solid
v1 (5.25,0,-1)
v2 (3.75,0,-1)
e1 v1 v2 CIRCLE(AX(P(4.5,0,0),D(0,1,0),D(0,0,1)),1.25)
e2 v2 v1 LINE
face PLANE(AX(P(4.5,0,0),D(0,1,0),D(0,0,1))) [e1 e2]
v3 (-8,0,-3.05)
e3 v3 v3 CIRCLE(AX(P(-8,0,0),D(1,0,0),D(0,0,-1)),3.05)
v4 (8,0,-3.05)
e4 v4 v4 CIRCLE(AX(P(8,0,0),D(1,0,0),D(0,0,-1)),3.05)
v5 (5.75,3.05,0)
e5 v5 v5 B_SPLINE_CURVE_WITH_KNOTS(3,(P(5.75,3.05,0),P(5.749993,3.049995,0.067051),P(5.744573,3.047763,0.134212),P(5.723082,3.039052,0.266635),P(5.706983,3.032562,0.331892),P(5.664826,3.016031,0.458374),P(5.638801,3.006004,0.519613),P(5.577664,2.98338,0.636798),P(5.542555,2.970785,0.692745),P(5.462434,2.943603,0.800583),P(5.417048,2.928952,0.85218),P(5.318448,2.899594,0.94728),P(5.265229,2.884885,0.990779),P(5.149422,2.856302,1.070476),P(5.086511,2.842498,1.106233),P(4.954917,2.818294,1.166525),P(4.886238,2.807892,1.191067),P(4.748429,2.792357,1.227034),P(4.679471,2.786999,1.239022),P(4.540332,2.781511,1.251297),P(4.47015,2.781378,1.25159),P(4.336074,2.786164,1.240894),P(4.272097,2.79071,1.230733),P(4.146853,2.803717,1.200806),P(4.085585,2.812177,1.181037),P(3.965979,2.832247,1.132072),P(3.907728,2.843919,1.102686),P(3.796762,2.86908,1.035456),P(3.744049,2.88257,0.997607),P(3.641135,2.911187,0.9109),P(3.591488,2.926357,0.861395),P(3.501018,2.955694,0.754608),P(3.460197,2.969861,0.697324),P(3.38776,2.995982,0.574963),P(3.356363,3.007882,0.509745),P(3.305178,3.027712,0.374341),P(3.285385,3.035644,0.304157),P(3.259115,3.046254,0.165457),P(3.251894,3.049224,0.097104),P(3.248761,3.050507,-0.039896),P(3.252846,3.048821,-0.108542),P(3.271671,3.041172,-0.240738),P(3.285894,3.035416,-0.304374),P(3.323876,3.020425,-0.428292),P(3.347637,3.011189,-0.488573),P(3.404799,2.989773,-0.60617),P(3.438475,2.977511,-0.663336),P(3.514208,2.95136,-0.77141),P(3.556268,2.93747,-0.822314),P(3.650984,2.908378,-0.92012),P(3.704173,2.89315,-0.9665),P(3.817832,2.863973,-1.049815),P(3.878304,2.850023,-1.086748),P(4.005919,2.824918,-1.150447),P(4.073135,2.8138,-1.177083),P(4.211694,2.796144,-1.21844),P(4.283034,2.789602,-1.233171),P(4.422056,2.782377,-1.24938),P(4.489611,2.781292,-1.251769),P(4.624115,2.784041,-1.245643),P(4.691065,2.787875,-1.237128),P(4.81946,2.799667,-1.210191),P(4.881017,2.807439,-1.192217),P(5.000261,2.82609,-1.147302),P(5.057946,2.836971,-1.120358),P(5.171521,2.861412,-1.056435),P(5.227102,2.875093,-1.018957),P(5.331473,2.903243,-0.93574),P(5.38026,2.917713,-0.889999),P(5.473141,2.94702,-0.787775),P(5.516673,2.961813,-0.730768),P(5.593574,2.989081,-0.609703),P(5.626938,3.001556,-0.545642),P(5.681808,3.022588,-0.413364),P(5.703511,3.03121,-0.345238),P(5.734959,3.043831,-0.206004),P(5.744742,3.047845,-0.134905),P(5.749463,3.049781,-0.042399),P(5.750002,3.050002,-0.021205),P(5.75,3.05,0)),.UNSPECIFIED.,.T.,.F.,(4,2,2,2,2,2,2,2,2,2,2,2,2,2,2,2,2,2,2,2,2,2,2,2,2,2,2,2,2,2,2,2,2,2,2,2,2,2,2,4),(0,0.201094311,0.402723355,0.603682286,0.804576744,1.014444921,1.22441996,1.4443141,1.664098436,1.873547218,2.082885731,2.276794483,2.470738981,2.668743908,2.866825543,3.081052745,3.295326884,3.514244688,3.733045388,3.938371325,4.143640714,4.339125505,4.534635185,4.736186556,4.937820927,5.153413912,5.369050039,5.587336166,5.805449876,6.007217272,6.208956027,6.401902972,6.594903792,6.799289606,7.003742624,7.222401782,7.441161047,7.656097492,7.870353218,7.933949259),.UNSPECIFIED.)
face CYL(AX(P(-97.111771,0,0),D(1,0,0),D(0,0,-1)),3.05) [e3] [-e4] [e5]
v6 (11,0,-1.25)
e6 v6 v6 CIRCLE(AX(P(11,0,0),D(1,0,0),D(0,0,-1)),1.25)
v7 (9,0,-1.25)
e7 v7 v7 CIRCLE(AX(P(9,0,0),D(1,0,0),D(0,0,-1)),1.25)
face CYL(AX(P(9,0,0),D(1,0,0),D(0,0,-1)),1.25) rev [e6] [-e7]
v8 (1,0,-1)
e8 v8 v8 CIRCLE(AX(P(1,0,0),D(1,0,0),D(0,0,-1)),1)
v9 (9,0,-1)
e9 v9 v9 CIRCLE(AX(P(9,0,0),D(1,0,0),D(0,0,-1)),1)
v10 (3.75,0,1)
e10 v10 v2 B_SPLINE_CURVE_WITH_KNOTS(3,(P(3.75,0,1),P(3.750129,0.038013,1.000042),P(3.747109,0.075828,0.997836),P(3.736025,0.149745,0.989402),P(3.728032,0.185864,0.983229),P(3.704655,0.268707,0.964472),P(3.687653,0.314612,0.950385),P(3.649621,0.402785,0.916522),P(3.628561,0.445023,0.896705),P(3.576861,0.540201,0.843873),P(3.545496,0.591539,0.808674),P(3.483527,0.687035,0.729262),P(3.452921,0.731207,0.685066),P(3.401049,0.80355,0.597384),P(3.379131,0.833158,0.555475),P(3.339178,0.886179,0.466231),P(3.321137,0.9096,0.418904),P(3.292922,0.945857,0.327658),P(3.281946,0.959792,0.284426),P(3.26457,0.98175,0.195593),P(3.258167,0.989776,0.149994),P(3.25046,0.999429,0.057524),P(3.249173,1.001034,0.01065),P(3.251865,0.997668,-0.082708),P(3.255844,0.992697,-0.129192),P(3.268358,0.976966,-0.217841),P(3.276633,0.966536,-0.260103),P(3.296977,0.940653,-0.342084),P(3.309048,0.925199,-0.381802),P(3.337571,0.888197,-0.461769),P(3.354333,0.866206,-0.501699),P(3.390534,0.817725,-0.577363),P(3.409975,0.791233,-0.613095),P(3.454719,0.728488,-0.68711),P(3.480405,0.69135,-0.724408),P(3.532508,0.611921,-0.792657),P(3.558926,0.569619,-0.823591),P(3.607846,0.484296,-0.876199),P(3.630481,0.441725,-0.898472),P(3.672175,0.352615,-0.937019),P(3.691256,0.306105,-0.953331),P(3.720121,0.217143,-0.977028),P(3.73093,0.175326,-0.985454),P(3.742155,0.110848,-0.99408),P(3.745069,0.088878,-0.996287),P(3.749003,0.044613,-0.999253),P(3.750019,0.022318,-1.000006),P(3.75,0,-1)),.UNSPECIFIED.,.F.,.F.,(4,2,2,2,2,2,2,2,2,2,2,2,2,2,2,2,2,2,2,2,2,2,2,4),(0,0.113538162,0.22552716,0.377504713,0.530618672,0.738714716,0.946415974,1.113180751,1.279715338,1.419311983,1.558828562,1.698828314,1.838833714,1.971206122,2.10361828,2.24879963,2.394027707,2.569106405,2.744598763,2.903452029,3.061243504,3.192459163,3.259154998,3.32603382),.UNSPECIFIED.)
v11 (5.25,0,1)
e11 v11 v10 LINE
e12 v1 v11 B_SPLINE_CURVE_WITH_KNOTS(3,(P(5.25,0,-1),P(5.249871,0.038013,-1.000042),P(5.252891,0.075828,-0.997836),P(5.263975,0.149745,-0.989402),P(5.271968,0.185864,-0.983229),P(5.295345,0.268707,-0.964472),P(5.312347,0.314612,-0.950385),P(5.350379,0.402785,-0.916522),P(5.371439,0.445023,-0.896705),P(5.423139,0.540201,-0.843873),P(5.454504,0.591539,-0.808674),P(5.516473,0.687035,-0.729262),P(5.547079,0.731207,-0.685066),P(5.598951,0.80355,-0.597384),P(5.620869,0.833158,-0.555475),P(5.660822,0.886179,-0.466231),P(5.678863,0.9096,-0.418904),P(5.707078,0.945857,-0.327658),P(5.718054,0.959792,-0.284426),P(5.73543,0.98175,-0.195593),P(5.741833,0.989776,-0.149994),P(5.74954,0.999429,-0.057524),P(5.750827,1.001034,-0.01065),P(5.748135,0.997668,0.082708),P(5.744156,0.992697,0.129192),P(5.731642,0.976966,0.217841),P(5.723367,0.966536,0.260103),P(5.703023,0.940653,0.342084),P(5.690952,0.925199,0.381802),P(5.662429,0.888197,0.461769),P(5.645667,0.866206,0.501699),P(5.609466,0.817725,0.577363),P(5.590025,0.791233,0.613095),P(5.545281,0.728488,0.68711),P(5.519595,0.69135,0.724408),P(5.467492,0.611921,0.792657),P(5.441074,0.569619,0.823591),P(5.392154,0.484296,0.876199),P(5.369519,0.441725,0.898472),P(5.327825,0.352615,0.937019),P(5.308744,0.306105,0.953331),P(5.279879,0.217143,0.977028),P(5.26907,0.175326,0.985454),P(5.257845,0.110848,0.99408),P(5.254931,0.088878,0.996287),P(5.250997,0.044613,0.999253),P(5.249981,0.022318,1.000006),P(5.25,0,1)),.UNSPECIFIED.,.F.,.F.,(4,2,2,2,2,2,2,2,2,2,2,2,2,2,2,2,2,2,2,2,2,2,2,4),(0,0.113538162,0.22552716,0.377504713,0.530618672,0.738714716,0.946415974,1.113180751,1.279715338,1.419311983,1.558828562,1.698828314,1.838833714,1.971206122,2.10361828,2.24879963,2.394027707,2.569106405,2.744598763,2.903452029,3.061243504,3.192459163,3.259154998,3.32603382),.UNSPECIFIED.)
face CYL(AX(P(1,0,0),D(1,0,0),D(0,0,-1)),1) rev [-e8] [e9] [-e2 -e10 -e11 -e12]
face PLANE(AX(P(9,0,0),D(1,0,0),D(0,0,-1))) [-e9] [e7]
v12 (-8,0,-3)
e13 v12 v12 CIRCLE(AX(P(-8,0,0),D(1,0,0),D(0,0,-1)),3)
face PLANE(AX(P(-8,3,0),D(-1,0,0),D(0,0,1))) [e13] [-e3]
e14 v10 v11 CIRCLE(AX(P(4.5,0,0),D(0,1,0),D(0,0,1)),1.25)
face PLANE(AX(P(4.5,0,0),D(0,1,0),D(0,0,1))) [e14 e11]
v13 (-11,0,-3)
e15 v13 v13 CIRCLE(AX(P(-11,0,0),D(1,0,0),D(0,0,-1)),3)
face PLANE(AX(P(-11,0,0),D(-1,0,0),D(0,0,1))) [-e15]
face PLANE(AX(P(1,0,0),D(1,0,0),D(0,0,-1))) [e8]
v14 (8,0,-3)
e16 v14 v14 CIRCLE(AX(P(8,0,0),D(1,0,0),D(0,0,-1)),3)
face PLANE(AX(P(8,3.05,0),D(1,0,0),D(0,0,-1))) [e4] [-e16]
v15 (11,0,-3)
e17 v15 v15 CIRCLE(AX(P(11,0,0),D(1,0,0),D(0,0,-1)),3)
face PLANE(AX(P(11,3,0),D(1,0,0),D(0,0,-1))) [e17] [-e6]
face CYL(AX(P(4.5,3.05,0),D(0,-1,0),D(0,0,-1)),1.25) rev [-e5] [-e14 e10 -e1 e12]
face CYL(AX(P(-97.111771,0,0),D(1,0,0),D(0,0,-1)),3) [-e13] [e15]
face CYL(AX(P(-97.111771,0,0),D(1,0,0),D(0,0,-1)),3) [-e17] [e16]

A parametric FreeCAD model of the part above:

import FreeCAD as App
import Part
import Sketcher

V = App.Vector
Q = App.Units.Quantity

doc = App.newDocument("Part")
params = doc.addObject("Spreadsheet::Sheet", "Params")
for row, (alias, value) in enumerate([
    ("sketch1_width", "3 mm"),
    ("sketch1_width2", "22 mm"),
    ("sketch1_height", "0.05 mm"),
    ("revolution_angle", "360 deg"),
    ("sketch2_diameter", "2 mm"),
    ("pocket1_length", "10 mm"),
    ("sketch3_diameter", "2 mm"),
    ("sketch3_diameter2", "2.5 mm"),
    ("pocket2_length", "2 mm"),
    ("sketch4_diameter", "2.5 mm"),
], start=1):
    params.set(f"A{row}", alias)
    params.set(f"B{row}", "=" + value)
    params.setAlias(f"B{row}", alias)

body = doc.addObject("PartDesign::Body", "Body")

# Sketch on XY plane
sketch1 = body.newObject("Sketcher::SketchObject", "Sketch")
sketch1.AttachmentSupport = (doc.getObject("XY_Plane"), [""])
sketch1.MapMode = "FlatFace"
sketch1.addGeometry(Part.LineSegment(V(-8, 3, 0), V(-11, 3, 0)), False)
sketch1.addGeometry(Part.LineSegment(V(-11, 3, 0), V(-11, 0, 0)), False)
sketch1.addGeometry(Part.LineSegment(V(-11, 0, 0), V(11, 0, 0)), False)
sketch1.addGeometry(Part.LineSegment(V(11, 0, 0), V(11, 3, 0)), False)
sketch1.addGeometry(Part.LineSegment(V(11, 3, 0), V(8, 3, 0)), False)
sketch1.addGeometry(Part.LineSegment(V(8, 3, 0), V(8, 3.05, 0)), False)
sketch1.addGeometry(Part.LineSegment(V(8, 3.05, 0), V(-8, 3.05, 0)), False)
sketch1.addGeometry(Part.LineSegment(V(-8, 3.05, 0), V(-8, 3, 0)), False)
sketch1.addConstraint(Sketcher.Constraint("Coincident", 0, 2, 1, 1))
sketch1.addConstraint(Sketcher.Constraint("Coincident", 1, 2, 2, 1))
sketch1.addConstraint(Sketcher.Constraint("Coincident", 2, 2, 3, 1))
sketch1.addConstraint(Sketcher.Constraint("Coincident", 3, 2, 4, 1))
sketch1.addConstraint(Sketcher.Constraint("Coincident", 4, 2, 5, 1))
sketch1.addConstraint(Sketcher.Constraint("Coincident", 5, 2, 6, 1))
sketch1.addConstraint(Sketcher.Constraint("Coincident", 6, 2, 7, 1))
sketch1.addConstraint(Sketcher.Constraint("Coincident", 7, 2, 0, 1))
sketch1.addConstraint(Sketcher.Constraint("Horizontal", 0))
sketch1.addConstraint(Sketcher.Constraint("Vertical", 1))
sketch1.addConstraint(Sketcher.Constraint("Horizontal", 2))
sketch1.addConstraint(Sketcher.Constraint("Vertical", 3))
sketch1.addConstraint(Sketcher.Constraint("Horizontal", 4))
sketch1.addConstraint(Sketcher.Constraint("Vertical", 5))
sketch1.addConstraint(Sketcher.Constraint("Horizontal", 6))
sketch1.addConstraint(Sketcher.Constraint("Vertical", 7))
sketch1.addConstraint(Sketcher.Constraint("Symmetric", 1, 2, 2, 2, -1, 1))
sketch1.addConstraint(Sketcher.Constraint("Symmetric", 4, 2, 7, 2, -2))
sketch1.addConstraint(Sketcher.Constraint("Equal", 4, 1))
sketch1.addConstraint(Sketcher.Constraint("DistanceX", 0, 2, 0, 1, Q("3 mm")))
sketch1.addConstraint(Sketcher.Constraint("DistanceX", 2, 1, 2, 2, Q("22 mm")))
sketch1.addConstraint(Sketcher.Constraint("DistanceY", 5, 1, 5, 2, Q("0.05 mm")))
sketch1.setExpression("Constraints[19]", "Params.sketch1_width")
sketch1.setExpression("Constraints[20]", "Params.sketch1_width2")
sketch1.setExpression("Constraints[21]", "Params.sketch1_height")
revolution = body.newObject("PartDesign::Revolution", "Revolution")
revolution.Profile = sketch1
revolution.ReferenceAxis = (sketch1, ["H_Axis"])
revolution.setExpression("Angle", "Params.revolution_angle")

# Sketch on YZ plane
sketch2 = body.newObject("Sketcher::SketchObject", "Sketch001")
sketch2.AttachmentSupport = (doc.getObject("YZ_Plane"), [""])
sketch2.MapMode = "FlatFace"
sketch2.AttachmentOffset = App.Placement(V(0, 0, 11), App.Rotation())
sketch2.addGeometry(Part.Circle(V(0, 0, 0), V(0, 0, 1), 1), False)
sketch2.addConstraint(Sketcher.Constraint("Coincident", 0, 3, -1, 1))
sketch2.addConstraint(Sketcher.Constraint("Diameter", 0, Q("2 mm")))
sketch2.setExpression("Constraints[1]", "Params.sketch2_diameter")
pocket1 = body.newObject("PartDesign::Pocket", "Pocket")
pocket1.Profile = sketch2
pocket1.setExpression("Length", "Params.pocket1_length")

# Sketch on YZ plane
sketch3 = body.newObject("Sketcher::SketchObject", "Sketch002")
sketch3.AttachmentSupport = (doc.getObject("YZ_Plane"), [""])
sketch3.MapMode = "FlatFace"
sketch3.AttachmentOffset = App.Placement(V(0, 0, 11), App.Rotation())
sketch3.addGeometry(Part.Circle(V(0, 0, 0), V(0, 0, 1), 1.2), False)
sketch3.addGeometry(Part.Circle(V(0, 0, 0), V(0, 0, 1), 1), False)
sketch3.addConstraint(Sketcher.Constraint("Coincident", 0, 3, -1, 1))
sketch3.addConstraint(Sketcher.Constraint("Coincident", 1, 3, -1, 1))
sketch3.addConstraint(Sketcher.Constraint("Diameter", 1, Q("2 mm")))
sketch3.addConstraint(Sketcher.Constraint("Diameter", 0, Q("2.5 mm")))
sketch3.setExpression("Constraints[2]", "Params.sketch3_diameter")
sketch3.setExpression("Constraints[3]", "Params.sketch3_diameter2")
pocket2 = body.newObject("PartDesign::Pocket", "Pocket001")
pocket2.Profile = sketch3
pocket2.setExpression("Length", "Params.pocket2_length")

# Sketch on XZ plane
sketch4 = body.newObject("Sketcher::SketchObject", "Sketch003")
sketch4.AttachmentSupport = (doc.getObject("XZ_Plane"), [""])
sketch4.MapMode = "FlatFace"
sketch4.addGeometry(Part.Circle(V(4.5, 0, 0), V(0, 0, 1), 1.2), False)
sketch4.addConstraint(Sketcher.Constraint("PointOnObject", 0, 3, -1))
sketch4.addConstraint(Sketcher.Constraint("Diameter", 0, Q("2.5 mm")))
sketch4.addConstraint(Sketcher.Constraint("DistanceX", -1, 1, 0, 3, Q("4.5 mm")))
sketch4.setExpression("Constraints[1]", "Params.sketch4_diameter")
pocket3 = body.newObject("PartDesign::Pocket", "Pocket002")
pocket3.Profile = sketch4
pocket3.Type = "ThroughAll"

doc.recompute()
